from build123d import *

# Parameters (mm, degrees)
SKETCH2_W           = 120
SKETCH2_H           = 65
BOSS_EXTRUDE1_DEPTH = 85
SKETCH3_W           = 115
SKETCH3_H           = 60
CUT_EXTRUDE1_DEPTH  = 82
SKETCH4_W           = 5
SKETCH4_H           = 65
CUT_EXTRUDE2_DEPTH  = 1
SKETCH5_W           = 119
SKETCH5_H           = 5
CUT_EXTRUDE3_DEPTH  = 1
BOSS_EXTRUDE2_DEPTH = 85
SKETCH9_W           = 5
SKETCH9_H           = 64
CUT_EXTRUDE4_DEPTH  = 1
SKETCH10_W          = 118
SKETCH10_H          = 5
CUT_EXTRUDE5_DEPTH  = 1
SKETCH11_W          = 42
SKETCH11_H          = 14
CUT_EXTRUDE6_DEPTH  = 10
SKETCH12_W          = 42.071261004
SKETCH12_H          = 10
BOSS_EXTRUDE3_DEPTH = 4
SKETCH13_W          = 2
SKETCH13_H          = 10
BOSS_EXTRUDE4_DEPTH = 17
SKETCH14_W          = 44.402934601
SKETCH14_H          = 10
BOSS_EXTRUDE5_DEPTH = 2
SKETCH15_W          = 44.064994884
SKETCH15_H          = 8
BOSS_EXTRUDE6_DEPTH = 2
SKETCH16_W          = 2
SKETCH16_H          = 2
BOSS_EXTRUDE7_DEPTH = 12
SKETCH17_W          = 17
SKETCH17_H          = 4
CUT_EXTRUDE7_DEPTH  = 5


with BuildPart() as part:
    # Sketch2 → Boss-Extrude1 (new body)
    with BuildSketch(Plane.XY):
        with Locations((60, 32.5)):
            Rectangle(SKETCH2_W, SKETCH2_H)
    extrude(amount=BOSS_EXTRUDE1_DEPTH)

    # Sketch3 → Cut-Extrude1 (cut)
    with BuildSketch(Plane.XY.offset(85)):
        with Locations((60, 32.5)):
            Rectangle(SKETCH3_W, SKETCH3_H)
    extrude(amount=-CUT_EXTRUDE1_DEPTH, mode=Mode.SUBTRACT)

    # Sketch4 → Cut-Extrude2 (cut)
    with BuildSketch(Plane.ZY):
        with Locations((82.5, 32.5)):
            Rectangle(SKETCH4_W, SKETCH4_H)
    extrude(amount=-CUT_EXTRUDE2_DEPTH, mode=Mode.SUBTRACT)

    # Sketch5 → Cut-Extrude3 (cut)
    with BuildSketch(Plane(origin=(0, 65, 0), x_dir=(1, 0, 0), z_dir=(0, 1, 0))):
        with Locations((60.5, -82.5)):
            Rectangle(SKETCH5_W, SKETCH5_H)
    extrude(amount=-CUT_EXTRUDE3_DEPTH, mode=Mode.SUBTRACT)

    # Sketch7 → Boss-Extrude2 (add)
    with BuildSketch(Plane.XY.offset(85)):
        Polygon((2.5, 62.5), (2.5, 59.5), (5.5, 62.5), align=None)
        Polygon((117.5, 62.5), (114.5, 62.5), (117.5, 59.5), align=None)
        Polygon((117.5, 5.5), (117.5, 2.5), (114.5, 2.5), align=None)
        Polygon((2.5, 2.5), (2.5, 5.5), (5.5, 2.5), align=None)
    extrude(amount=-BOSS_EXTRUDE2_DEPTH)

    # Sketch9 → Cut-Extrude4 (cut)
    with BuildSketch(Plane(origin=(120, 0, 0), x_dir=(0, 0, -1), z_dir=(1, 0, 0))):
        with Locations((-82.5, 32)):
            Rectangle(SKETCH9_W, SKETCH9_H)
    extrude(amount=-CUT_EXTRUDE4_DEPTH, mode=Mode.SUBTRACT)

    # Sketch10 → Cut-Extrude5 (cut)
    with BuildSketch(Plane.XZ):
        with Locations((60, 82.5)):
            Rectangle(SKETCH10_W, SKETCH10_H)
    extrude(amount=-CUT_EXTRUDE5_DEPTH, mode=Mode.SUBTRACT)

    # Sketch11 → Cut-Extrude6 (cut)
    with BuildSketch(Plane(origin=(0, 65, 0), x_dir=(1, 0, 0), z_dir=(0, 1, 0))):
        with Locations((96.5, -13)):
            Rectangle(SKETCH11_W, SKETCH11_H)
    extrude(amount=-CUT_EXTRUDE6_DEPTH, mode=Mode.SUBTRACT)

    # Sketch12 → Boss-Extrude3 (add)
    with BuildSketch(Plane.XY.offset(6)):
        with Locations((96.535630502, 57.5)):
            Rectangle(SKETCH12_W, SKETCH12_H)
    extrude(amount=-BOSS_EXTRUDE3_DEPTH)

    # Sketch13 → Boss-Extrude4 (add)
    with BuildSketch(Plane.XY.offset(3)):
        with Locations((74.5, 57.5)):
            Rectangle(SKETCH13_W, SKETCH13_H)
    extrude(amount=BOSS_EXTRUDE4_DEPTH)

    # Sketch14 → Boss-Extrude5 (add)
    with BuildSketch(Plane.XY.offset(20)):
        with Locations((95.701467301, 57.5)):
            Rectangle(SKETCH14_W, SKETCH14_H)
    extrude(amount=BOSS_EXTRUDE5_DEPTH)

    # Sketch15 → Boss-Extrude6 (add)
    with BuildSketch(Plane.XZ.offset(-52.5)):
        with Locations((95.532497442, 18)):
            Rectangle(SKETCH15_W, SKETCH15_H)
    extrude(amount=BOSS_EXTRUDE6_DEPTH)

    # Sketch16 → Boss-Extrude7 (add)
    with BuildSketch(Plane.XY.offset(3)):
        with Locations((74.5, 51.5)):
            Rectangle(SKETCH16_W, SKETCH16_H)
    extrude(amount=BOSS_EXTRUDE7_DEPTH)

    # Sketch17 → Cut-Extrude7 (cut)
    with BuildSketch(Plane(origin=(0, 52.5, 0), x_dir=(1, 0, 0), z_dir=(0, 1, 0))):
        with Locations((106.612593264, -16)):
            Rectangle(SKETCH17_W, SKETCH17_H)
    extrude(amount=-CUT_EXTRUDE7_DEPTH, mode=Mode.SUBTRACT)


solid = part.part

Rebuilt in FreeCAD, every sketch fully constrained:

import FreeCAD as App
import Part
import Sketcher

V = App.Vector
Q = App.Units.Quantity


def add_polygon(sketch, points):
    """Adds a closed chain of lines whose ends are joined by coincident constraints."""
    first, n = sketch.GeometryCount, len(points)
    for a, b in zip(points, points[1:] + points[:1]):
        sketch.addGeometry(Part.LineSegment(App.Vector(*a, 0), App.Vector(*b, 0)), False)
    for i in range(n):
        sketch.addConstraint(Sketcher.Constraint("Coincident", first + i, 2, first + (i + 1) % n, 1))

doc = App.newDocument("Part")
params = doc.addObject("Spreadsheet::Sheet", "Params")
for row, (alias, value) in enumerate([
    ("sketch1_width", "120 mm"),
    ("sketch1_height", "65 mm"),
    ("pad1_length", "85 mm"),
    ("sketch2_width", "115 mm"),
    ("sketch2_height", "60 mm"),
    ("pocket1_length", "82 mm"),
    ("sketch3_width", "65 mm"),
    ("sketch3_height", "5 mm"),
    ("pocket2_length", "1 mm"),
    ("sketch4_width", "119 mm"),
    ("sketch4_height", "5 mm"),
    ("pocket3_length", "1 mm"),
    ("sketch5_width", "3 mm"),
    ("pad2_length", "85 mm"),
    ("sketch6_width", "64 mm"),
    ("sketch6_height", "5 mm"),
    ("pocket4_length", "1 mm"),
    ("sketch7_width", "118 mm"),
    ("sketch7_height", "5 mm"),
    ("pocket5_length", "1 mm"),
    ("sketch8_width", "42 mm"),
    ("sketch8_height", "14 mm"),
    ("pocket6_length", "10 mm"),
    ("sketch9_height", "10 mm"),
    ("pad3_length", "4 mm"),
    ("sketch10_width", "2 mm"),
    ("sketch10_height", "10 mm"),
    ("pad4_length", "17 mm"),
    ("sketch11_height", "10 mm"),
    ("pad5_length", "2 mm"),
    ("sketch12_height", "8 mm"),
    ("pad6_length", "2 mm"),
    ("sketch13_width", "2 mm"),
    ("pad7_length", "12 mm"),
    ("sketch14_width", "17 mm"),
    ("sketch14_height", "4 mm"),
    ("pocket7_length", "5 mm"),
], start=1):
    params.set(f"A{row}", alias)
    params.set(f"B{row}", "=" + value)
    params.setAlias(f"B{row}", alias)

body = doc.addObject("PartDesign::Body", "Body")

sketch1 = body.newObject("Sketcher::SketchObject", "Sketch")
sketch1.AttachmentSupport = (doc.getObject("XY_Plane"), [""])
sketch1.MapMode = "FlatFace"
add_polygon(sketch1, [(0, 65), (0, 0), (120, 0), (120, 65)])
sketch1.addConstraint([
    Sketcher.Constraint("Vertical", 0),
    Sketcher.Constraint("Horizontal", 1),
    Sketcher.Constraint("Vertical", 2),
    Sketcher.Constraint("Horizontal", 3),
    Sketcher.Constraint("Coincident", 0, 2, -1, 1),
    Sketcher.Constraint("DistanceX", 1, 1, 1, 2, Q("120 mm")),
    Sketcher.Constraint("DistanceY", 0, 2, 0, 1, Q("65 mm")),
])
sketch1.setExpression("Constraints[9]", "Params.sketch1_width")
sketch1.setExpression("Constraints[10]", "Params.sketch1_height")
pad1 = body.newObject("PartDesign::Pad", "Pad")
pad1.Profile = sketch1
pad1.setExpression("Length", "Params.pad1_length")

sketch2 = body.newObject("Sketcher::SketchObject", "Sketch001")
sketch2.AttachmentSupport = (doc.getObject("XY_Plane"), [""])
sketch2.MapMode = "FlatFace"
sketch2.AttachmentOffset = App.Placement(V(0, 0, 85), App.Rotation())
add_polygon(sketch2, [(2, 62), (2, 2), (118, 2), (118, 62)])
sketch2.addConstraint([
    Sketcher.Constraint("Vertical", 0),
    Sketcher.Constraint("Horizontal", 1),
    Sketcher.Constraint("Vertical", 2),
    Sketcher.Constraint("Horizontal", 3),
    Sketcher.Constraint("DistanceX", 1, 1, 1, 2, Q("115 mm")),
    Sketcher.Constraint("DistanceY", 0, 2, 0, 1, Q("60 mm")),
    Sketcher.Constraint("DistanceX", -1, 1, 0, 2, Q("2.5 mm")),
    Sketcher.Constraint("DistanceY", -1, 1, 0, 2, Q("2.5 mm")),
])
sketch2.setExpression("Constraints[8]", "Params.sketch2_width")
sketch2.setExpression("Constraints[9]", "Params.sketch2_height")
pocket1 = body.newObject("PartDesign::Pocket", "Pocket")
pocket1.Profile = sketch2
pocket1.setExpression("Length", "Params.pocket1_length")

sketch3 = body.newObject("Sketcher::SketchObject", "Sketch002")
sketch3.AttachmentSupport = (doc.getObject("YZ_Plane"), [""])
sketch3.MapMode = "FlatFace"
add_polygon(sketch3, [(65, 80), (0, 80), (0, 85), (65, 85)])
sketch3.addConstraint([
    Sketcher.Constraint("Horizontal", 0),
    Sketcher.Constraint("Vertical", 1),
    Sketcher.Constraint("Horizontal", 2),
    Sketcher.Constraint("Vertical", 3),
    Sketcher.Constraint("PointOnObject", 0, 2, -2),
    Sketcher.Constraint("DistanceX", 0, 2, 0, 1, Q("65 mm")),
    Sketcher.Constraint("DistanceY", 1, 1, 1, 2, Q("5 mm")),
    Sketcher.Constraint("DistanceY", -1, 1, 0, 2, Q("80 mm")),
])
sketch3.setExpression("Constraints[9]", "Params.sketch3_width")
sketch3.setExpression("Constraints[10]", "Params.sketch3_height")
pocket2 = body.newObject("PartDesign::Pocket", "Pocket001")
pocket2.Profile = sketch3
pocket2.setExpression("Length", "Params.pocket2_length")
pocket2.Reversed = True

sketch4 = body.newObject("Sketcher::SketchObject", "Sketch003")
sketch4.AttachmentSupport = (doc.getObject("XZ_Plane"), [""])
sketch4.MapMode = "FlatFace"
sketch4.AttachmentOffset = App.Placement(V(0, 0, -65), App.Rotation())
add_polygon(sketch4, [(1, 80), (1, 85), (120, 85), (120, 80)])
sketch4.addConstraint([
    Sketcher.Constraint("Vertical", 0),
    Sketcher.Constraint("Horizontal", 1),
    Sketcher.Constraint("Vertical", 2),
    Sketcher.Constraint("Horizontal", 3),
    Sketcher.Constraint("DistanceX", 1, 1, 1, 2, Q("119 mm")),
    Sketcher.Constraint("DistanceY", 0, 1, 0, 2, Q("5 mm")),
    Sketcher.Constraint("DistanceX", -1, 1, 0, 2, Q("1 mm")),
    Sketcher.Constraint("DistanceY", -1, 1, 0, 2, Q("85 mm")),
])
sketch4.setExpression("Constraints[8]", "Params.sketch4_width")
sketch4.setExpression("Constraints[9]", "Params.sketch4_height")
pocket3 = body.newObject("PartDesign::Pocket", "Pocket002")
pocket3.Profile = sketch4
pocket3.setExpression("Length", "Params.pocket3_length")
pocket3.Reversed = True

sketch5 = body.newObject("Sketcher::SketchObject", "Sketch004")
sketch5.AttachmentSupport = (doc.getObject("XY_Plane"), [""])
sketch5.MapMode = "FlatFace"
sketch5.AttachmentOffset = App.Placement(V(0, 0, 85), App.Rotation())
add_polygon(sketch5, [(2.5, 62.5), (2.5, 59.5), (5.5, 62.5)])
add_polygon(sketch5, [(117.5, 62.5), (114.5, 62.5), (117.5, 59.5)])
add_polygon(sketch5, [(117.5, 2.5), (117.5, 5.5), (114.5, 2.5)])
add_polygon(sketch5, [(2.5, 5.5), (2.5, 2.5), (5.5, 2.5)])
sketch5.addConstraint([
    Sketcher.Constraint("Vertical", 0),
    Sketcher.Constraint("Horizontal", 2),
    Sketcher.Constraint("Horizontal", 3),
    Sketcher.Constraint("Vertical", 5),
    Sketcher.Constraint("Vertical", 6),
    Sketcher.Constraint("Horizontal", 8),
    Sketcher.Constraint("Vertical", 9),
    Sketcher.Constraint("Horizontal", 10),
    Sketcher.Constraint("Perpendicular", 1, 4),
    Sketcher.Constraint("Perpendicular", 4, 7),
    Sketcher.Constraint("Perpendicular", 7, 11),
    Sketcher.Constraint("Horizontal", 2, 2, 3, 2),
    Sketcher.Constraint("Horizontal", 0, 2, 4, 2),
    Sketcher.Constraint("Horizontal", 8, 2, 9, 2),
    Sketcher.Constraint("Horizontal", 6, 2, 11, 2),
    Sketcher.Constraint("Vertical", 5, 2, 6, 2),
    Sketcher.Constraint("Vertical", 3, 2, 7, 2),
    Sketcher.Constraint("Vertical", 2, 2, 9, 2),
    Sketcher.Constraint("Vertical", 1, 2, 10, 2),
    Sketcher.Constraint("DistanceX", 2, 2, 2, 1, Q("3 mm")),
    Sketcher.Constraint("DistanceX", 1, 2, 3, 2, Q("109 mm")),
    Sketcher.Constraint("DistanceY", 6, 2, 4, 2, Q("54 mm")),
    Sketcher.Constraint("DistanceX", -1, 1, 0, 2, Q("2.5 mm")),
    Sketcher.Constraint("DistanceY", -1, 1, 0, 2, Q("59.5 mm")),
])
sketch5.setExpression("Constraints[31]", "Params.sketch5_width")
pad2 = body.newObject("PartDesign::Pad", "Pad001")
pad2.Profile = sketch5
pad2.setExpression("Length", "Params.pad2_length")
pad2.Reversed = True

sketch6 = body.newObject("Sketcher::SketchObject", "Sketch005")
sketch6.AttachmentSupport = (doc.getObject("YZ_Plane"), [""])
sketch6.MapMode = "FlatFace"
sketch6.AttachmentOffset = App.Placement(V(0, 0, 120), App.Rotation())
add_polygon(sketch6, [(64, 85), (0, 85), (0, 80), (64, 80)])
sketch6.addConstraint([
    Sketcher.Constraint("Horizontal", 0),
    Sketcher.Constraint("Vertical", 1),
    Sketcher.Constraint("Horizontal", 2),
    Sketcher.Constraint("Vertical", 3),
    Sketcher.Constraint("PointOnObject", 0, 2, -2),
    Sketcher.Constraint("DistanceX", 0, 2, 0, 1, Q("64 mm")),
    Sketcher.Constraint("DistanceY", 1, 2, 1, 1, Q("5 mm")),
    Sketcher.Constraint("DistanceY", -1, 1, 0, 2, Q("85 mm")),
])
sketch6.setExpression("Constraints[9]", "Params.sketch6_width")
sketch6.setExpression("Constraints[10]", "Params.sketch6_height")
pocket4 = body.newObject("PartDesign::Pocket", "Pocket003")
pocket4.Profile = sketch6
pocket4.setExpression("Length", "Params.pocket4_length")

sketch7 = body.newObject("Sketcher::SketchObject", "Sketch006")
sketch7.AttachmentSupport = (doc.getObject("XZ_Plane"), [""])
sketch7.MapMode = "FlatFace"
add_polygon(sketch7, [(1, 85), (1, 80), (119, 80), (119, 85)])
sketch7.addConstraint([
    Sketcher.Constraint("Vertical", 0),
    Sketcher.Constraint("Horizontal", 1),
    Sketcher.Constraint("Vertical", 2),
    Sketcher.Constraint("Horizontal", 3),
    Sketcher.Constraint("DistanceX", 1, 1, 1, 2, Q("118 mm")),
    Sketcher.Constraint("DistanceY", 0, 2, 0, 1, Q("5 mm")),
    Sketcher.Constraint("DistanceX", -1, 1, 0, 2, Q("1 mm")),
    Sketcher.Constraint("DistanceY", -1, 1, 0, 2, Q("80 mm")),
])
sketch7.setExpression("Constraints[8]", "Params.sketch7_width")
sketch7.setExpression("Constraints[9]", "Params.sketch7_height")
pocket5 = body.newObject("PartDesign::Pocket", "Pocket004")
pocket5.Profile = sketch7
pocket5.setExpression("Length", "Params.pocket5_length")

sketch8 = body.newObject("Sketcher::SketchObject", "Sketch007")
sketch8.AttachmentSupport = (doc.getObject("XZ_Plane"), [""])
sketch8.MapMode = "FlatFace"
sketch8.AttachmentOffset = App.Placement(V(0, 0, -65), App.Rotation())
add_polygon(sketch8, [(76, 6), (76, 20), (118, 20), (118, 6)])
sketch8.addConstraint([
    Sketcher.Constraint("Vertical", 0),
    Sketcher.Constraint("Horizontal", 1),
    Sketcher.Constraint("Vertical", 2),
    Sketcher.Constraint("Horizontal", 3),
    Sketcher.Constraint("DistanceX", 1, 1, 1, 2, Q("42 mm")),
    Sketcher.Constraint("DistanceY", 0, 1, 0, 2, Q("14 mm")),
    Sketcher.Constraint("DistanceY", -1, 1, 0, 2, Q("20 mm")),
    Sketcher.Constraint("DistanceX", -1, 1, 0, 2, Q("75.5 mm")),
])
sketch8.setExpression("Constraints[8]", "Params.sketch8_width")
sketch8.setExpression("Constraints[9]", "Params.sketch8_height")
pocket6 = body.newObject("PartDesign::Pocket", "Pocket005")
pocket6.Profile = sketch8
pocket6.setExpression("Length", "Params.pocket6_length")
pocket6.Reversed = True

sketch9 = body.newObject("Sketcher::SketchObject", "Sketch008")
sketch9.AttachmentSupport = (doc.getObject("XY_Plane"), [""])
sketch9.MapMode = "FlatFace"
sketch9.AttachmentOffset = App.Placement(V(0, 0, 6), App.Rotation())
add_polygon(sketch9, [(76, 62), (76, 52), (118, 52), (118, 62)])
sketch9.addConstraint([
    Sketcher.Constraint("Vertical", 0),
    Sketcher.Constraint("Horizontal", 1),
    Sketcher.Constraint("Vertical", 2),
    Sketcher.Constraint("Horizontal", 3),
    Sketcher.Constraint("DistanceY", 0, 2, 0, 1, Q("10 mm")),
    Sketcher.Constraint("DistanceX", -1, 1, 0, 2, Q("75.5 mm")),
    Sketcher.Constraint("DistanceY", -1, 1, 0, 2, Q("52.5 mm")),
    Sketcher.Constraint("DistanceX", 1, 1, 1, 2, Q("42.071261 mm")),
])
sketch9.setExpression("Constraints[8]", "Params.sketch9_height")
pad3 = body.newObject("PartDesign::Pad", "Pad002")
pad3.Profile = sketch9
pad3.setExpression("Length", "Params.pad3_length")
pad3.Reversed = True

sketch10 = body.newObject("Sketcher::SketchObject", "Sketch009")
sketch10.AttachmentSupport = (doc.getObject("XY_Plane"), [""])
sketch10.MapMode = "FlatFace"
sketch10.AttachmentOffset = App.Placement(V(0, 0, 3), App.Rotation())
add_polygon(sketch10, [(73.5, 62.5), (73.5, 52.5), (75.5, 52.5), (75.5, 62.5)])
sketch10.addConstraint([
    Sketcher.Constraint("Vertical", 0),
    Sketcher.Constraint("Horizontal", 1),
    Sketcher.Constraint("Vertical", 2),
    Sketcher.Constraint("Horizontal", 3),
    Sketcher.Constraint("DistanceX", 1, 1, 1, 2, Q("2 mm")),
    Sketcher.Constraint("DistanceY", 0, 2, 0, 1, Q("10 mm")),
    Sketcher.Constraint("DistanceX", -1, 1, 0, 2, Q("73.5 mm")),
    Sketcher.Constraint("DistanceY", -1, 1, 0, 2, Q("52.5 mm")),
])
sketch10.setExpression("Constraints[8]", "Params.sketch10_width")
sketch10.setExpression("Constraints[9]", "Params.sketch10_height")
pad4 = body.newObject("PartDesign::Pad", "Pad003")
pad4.Profile = sketch10
pad4.setExpression("Length", "Params.pad4_length")

sketch11 = body.newObject("Sketcher::SketchObject", "Sketch010")
sketch11.AttachmentSupport = (doc.getObject("XY_Plane"), [""])
sketch11.MapMode = "FlatFace"
sketch11.AttachmentOffset = App.Placement(V(0, 0, 20), App.Rotation())
add_polygon(sketch11, [(74, 62), (74, 52), (118, 52), (118, 62)])
sketch11.addConstraint([
    Sketcher.Constraint("Vertical", 0),
    Sketcher.Constraint("Horizontal", 1),
    Sketcher.Constraint("Vertical", 2),
    Sketcher.Constraint("Horizontal", 3),
    Sketcher.Constraint("DistanceY", 0, 2, 0, 1, Q("10 mm")),
    Sketcher.Constraint("DistanceX", -1, 1, 0, 2, Q("73.5 mm")),
    Sketcher.Constraint("DistanceY", -1, 1, 0, 2, Q("52.5 mm")),
    Sketcher.Constraint("DistanceX", 1, 1, 1, 2, Q("44.402935 mm")),
])
sketch11.setExpression("Constraints[8]", "Params.sketch11_height")
pad5 = body.newObject("PartDesign::Pad", "Pad004")
pad5.Profile = sketch11
pad5.setExpression("Length", "Params.pad5_length")

sketch12 = body.newObject("Sketcher::SketchObject", "Sketch011")
sketch12.AttachmentSupport = (doc.getObject("XZ_Plane"), [""])
sketch12.MapMode = "FlatFace"
sketch12.AttachmentOffset = App.Placement(V(0, 0, -52.5), App.Rotation())
add_polygon(sketch12, [(74, 22), (74, 14), (118, 14), (118, 22)])
sketch12.addConstraint([
    Sketcher.Constraint("Vertical", 0),
    Sketcher.Constraint("Horizontal", 1),
    Sketcher.Constraint("Vertical", 2),
    Sketcher.Constraint("Horizontal", 3),
    Sketcher.Constraint("DistanceY", 0, 2, 0, 1, Q("8 mm")),
    Sketcher.Constraint("DistanceY", -1, 1, 0, 2, Q("14 mm")),
    Sketcher.Constraint("DistanceX", -1, 1, 0, 2, Q("73.5 mm")),
    Sketcher.Constraint("DistanceX", 1, 1, 1, 2, Q("44.064995 mm")),
])
sketch12.setExpression("Constraints[8]", "Params.sketch12_height")
pad6 = body.newObject("PartDesign::Pad", "Pad005")
pad6.Profile = sketch12
pad6.setExpression("Length", "Params.pad6_length")

sketch13 = body.newObject("Sketcher::SketchObject", "Sketch012")
sketch13.AttachmentSupport = (doc.getObject("XY_Plane"), [""])
sketch13.MapMode = "FlatFace"
sketch13.AttachmentOffset = App.Placement(V(0, 0, 3), App.Rotation())
add_polygon(sketch13, [(73.5, 52.5), (73.5, 50.5), (75.5, 50.5), (75.5, 52.5)])
sketch13.addConstraint([
    Sketcher.Constraint("Vertical", 0),
    Sketcher.Constraint("Horizontal", 1),
    Sketcher.Constraint("Vertical", 2),
    Sketcher.Constraint("Horizontal", 3),
    Sketcher.Constraint("Equal", 3, 0),
    Sketcher.Constraint("DistanceX", 1, 1, 1, 2, Q("2 mm")),
    Sketcher.Constraint("DistanceX", -1, 1, 0, 2, Q("73.5 mm")),
    Sketcher.Constraint("DistanceY", -1, 1, 0, 2, Q("50.5 mm")),
])
sketch13.setExpression("Constraints[9]", "Params.sketch13_width")
pad7 = body.newObject("PartDesign::Pad", "Pad006")
pad7.Profile = sketch13
pad7.setExpression("Length", "Params.pad7_length")

sketch14 = body.newObject("Sketcher::SketchObject", "Sketch013")
sketch14.AttachmentSupport = (doc.getObject("XZ_Plane"), [""])
sketch14.MapMode = "FlatFace"
sketch14.AttachmentOffset = App.Placement(V(0, 0, -52.5), App.Rotation())
add_polygon(sketch14, [(98.1, 14), (98.1, 18), (115.1, 18), (115.1, 14)])
sketch14.addConstraint([
    Sketcher.Constraint("Vertical", 0),
    Sketcher.Constraint("Horizontal", 1),
    Sketcher.Constraint("Vertical", 2),
    Sketcher.Constraint("Horizontal", 3),
    Sketcher.Constraint("DistanceX", 1, 1, 1, 2, Q("17 mm")),
    Sketcher.Constraint("DistanceY", 0, 1, 0, 2, Q("4 mm")),
    Sketcher.Constraint("DistanceY", -1, 1, 0, 2, Q("18 mm")),
    Sketcher.Constraint("DistanceX", -1, 1, 0, 2, Q("98.112593 mm")),
])
sketch14.setExpression("Constraints[8]", "Params.sketch14_width")
sketch14.setExpression("Constraints[9]", "Params.sketch14_height")
pocket7 = body.newObject("PartDesign::Pocket", "Pocket006")
pocket7.Profile = sketch14
pocket7.setExpression("Length", "Params.pocket7_length")
pocket7.Reversed = True

doc.recompute()
